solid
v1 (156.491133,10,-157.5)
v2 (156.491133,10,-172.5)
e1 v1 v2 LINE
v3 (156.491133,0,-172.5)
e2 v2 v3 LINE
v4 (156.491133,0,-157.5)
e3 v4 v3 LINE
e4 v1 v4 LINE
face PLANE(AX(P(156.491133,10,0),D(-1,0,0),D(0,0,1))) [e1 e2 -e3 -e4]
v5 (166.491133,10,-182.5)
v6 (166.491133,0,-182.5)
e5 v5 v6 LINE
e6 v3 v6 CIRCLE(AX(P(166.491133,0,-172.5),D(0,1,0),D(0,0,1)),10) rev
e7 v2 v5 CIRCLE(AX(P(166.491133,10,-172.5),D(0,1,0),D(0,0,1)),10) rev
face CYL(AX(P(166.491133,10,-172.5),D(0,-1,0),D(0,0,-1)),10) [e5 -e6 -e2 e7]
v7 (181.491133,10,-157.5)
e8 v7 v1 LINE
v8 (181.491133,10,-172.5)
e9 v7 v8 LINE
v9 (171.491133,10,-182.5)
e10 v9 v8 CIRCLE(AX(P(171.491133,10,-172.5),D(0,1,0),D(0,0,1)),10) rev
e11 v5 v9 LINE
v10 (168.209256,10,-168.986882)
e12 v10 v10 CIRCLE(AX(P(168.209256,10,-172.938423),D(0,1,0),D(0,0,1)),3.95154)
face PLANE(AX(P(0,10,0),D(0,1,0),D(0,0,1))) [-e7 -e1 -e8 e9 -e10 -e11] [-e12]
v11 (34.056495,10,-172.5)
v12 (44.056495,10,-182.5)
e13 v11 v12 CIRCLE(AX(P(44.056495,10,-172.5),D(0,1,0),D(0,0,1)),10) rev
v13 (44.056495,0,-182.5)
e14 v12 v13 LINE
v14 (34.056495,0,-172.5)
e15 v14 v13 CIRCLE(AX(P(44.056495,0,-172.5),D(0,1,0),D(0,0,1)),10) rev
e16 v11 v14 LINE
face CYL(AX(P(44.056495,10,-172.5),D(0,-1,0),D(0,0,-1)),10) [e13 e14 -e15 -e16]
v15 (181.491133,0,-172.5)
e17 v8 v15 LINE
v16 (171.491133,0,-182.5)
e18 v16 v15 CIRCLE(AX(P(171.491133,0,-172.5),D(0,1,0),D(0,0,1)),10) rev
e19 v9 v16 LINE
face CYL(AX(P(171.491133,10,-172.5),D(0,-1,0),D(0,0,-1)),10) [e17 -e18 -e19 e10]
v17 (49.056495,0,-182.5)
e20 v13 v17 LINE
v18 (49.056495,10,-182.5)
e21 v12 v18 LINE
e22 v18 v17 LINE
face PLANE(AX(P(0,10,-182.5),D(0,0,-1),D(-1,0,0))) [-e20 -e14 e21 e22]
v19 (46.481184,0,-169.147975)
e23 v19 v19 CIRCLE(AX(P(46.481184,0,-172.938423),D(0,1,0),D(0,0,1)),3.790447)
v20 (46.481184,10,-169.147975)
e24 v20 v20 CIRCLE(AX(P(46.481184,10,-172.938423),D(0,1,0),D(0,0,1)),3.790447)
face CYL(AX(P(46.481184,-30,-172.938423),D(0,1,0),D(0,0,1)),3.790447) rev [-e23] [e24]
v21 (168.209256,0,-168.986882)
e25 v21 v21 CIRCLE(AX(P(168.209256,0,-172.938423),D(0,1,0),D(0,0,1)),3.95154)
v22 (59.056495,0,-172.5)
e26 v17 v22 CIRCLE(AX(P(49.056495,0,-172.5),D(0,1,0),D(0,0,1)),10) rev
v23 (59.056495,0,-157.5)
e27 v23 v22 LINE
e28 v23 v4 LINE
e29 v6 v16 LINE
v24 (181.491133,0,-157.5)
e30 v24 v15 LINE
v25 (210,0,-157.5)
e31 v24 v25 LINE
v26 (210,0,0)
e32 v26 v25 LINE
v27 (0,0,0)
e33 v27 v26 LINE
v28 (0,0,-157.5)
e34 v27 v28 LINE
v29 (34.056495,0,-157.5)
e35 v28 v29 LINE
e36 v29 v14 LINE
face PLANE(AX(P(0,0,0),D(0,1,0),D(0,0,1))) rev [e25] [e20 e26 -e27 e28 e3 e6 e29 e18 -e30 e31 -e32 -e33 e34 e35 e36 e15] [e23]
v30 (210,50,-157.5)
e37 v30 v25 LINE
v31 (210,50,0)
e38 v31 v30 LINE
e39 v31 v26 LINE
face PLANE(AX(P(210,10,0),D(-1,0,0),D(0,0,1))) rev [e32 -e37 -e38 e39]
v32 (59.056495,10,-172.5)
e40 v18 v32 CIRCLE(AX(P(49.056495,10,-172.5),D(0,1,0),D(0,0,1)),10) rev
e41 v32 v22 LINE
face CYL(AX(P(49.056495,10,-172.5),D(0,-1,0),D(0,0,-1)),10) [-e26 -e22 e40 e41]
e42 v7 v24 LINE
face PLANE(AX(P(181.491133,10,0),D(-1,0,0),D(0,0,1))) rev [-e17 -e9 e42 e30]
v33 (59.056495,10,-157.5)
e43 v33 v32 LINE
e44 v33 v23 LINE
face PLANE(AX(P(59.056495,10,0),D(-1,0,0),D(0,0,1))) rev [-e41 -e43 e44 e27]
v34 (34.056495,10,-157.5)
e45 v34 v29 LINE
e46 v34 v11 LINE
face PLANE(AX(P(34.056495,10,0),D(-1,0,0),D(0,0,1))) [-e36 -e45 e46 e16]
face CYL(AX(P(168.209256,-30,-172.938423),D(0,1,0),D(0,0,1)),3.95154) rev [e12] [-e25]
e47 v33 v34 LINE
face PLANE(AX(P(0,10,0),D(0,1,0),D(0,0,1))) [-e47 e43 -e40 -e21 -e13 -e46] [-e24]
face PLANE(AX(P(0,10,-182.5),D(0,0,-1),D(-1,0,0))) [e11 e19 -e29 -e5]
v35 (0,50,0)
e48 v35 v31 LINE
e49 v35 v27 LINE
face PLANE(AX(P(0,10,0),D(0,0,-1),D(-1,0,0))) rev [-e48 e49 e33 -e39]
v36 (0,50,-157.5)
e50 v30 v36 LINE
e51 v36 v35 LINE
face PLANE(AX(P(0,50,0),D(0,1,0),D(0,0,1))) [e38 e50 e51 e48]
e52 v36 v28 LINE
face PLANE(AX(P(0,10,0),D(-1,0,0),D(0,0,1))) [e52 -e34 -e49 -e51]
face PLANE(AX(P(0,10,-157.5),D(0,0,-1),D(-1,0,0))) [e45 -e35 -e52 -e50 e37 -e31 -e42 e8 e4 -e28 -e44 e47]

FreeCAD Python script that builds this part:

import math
import FreeCAD as App
import Part
import Sketcher

doc = App.newDocument("Part")
body = doc.addObject("PartDesign::Body", "Body")

# Sketch on XZ plane
sketch1 = body.newObject("Sketcher::SketchObject", "Sketch")
sketch1.AttachmentSupport = (doc.getObject("XZ_Plane"), [""])
sketch1.MapMode = "FlatFace"
sketch1.addGeometry(Part.LineSegment(App.Vector(0, -157.5, 0), App.Vector(0, 0, 0)), False)
sketch1.addGeometry(Part.LineSegment(App.Vector(0, 0, 0), App.Vector(210, 0, 0)), False)
sketch1.addGeometry(Part.LineSegment(App.Vector(210, 0, 0), App.Vector(210, -157.5, 0)), False)
sketch1.addGeometry(Part.LineSegment(App.Vector(210, -157.5, 0), App.Vector(181.491133, -157.5, 0)), False)
sketch1.addGeometry(Part.LineSegment(App.Vector(181.491133, -157.5, 0), App.Vector(181.491133, -172.5, 0)), False)
sketch1.addGeometry(Part.ArcOfCircle(Part.Circle(App.Vector(171.491133, -172.5, 0), App.Vector(0, 0, 1), 10), math.radians(-90), math.radians(0)), False)
sketch1.addGeometry(Part.LineSegment(App.Vector(171.491133, -182.5, 0), App.Vector(166.491133, -182.5, 0)), False)
sketch1.addGeometry(Part.ArcOfCircle(Part.Circle(App.Vector(166.491133, -172.5, 0), App.Vector(0, 0, 1), 10), math.radians(180), math.radians(270)), False)
sketch1.addGeometry(Part.LineSegment(App.Vector(156.491133, -172.5, 0), App.Vector(156.491133, -157.5, 0)), False)
sketch1.addGeometry(Part.LineSegment(App.Vector(156.491133, -157.5, 0), App.Vector(59.056495, -157.5, 0)), False)
sketch1.addGeometry(Part.LineSegment(App.Vector(59.056495, -157.5, 0), App.Vector(59.056495, -172.5, 0)), False)
sketch1.addGeometry(Part.ArcOfCircle(Part.Circle(App.Vector(49.056495, -172.5, 0), App.Vector(0, 0, 1), 10), math.radians(-90), math.radians(0)), False)
sketch1.addGeometry(Part.LineSegment(App.Vector(49.056495, -182.5, 0), App.Vector(44.056495, -182.5, 0)), False)
sketch1.addGeometry(Part.ArcOfCircle(Part.Circle(App.Vector(44.056495, -172.5, 0), App.Vector(0, 0, 1), 10), math.radians(180), math.radians(270)), False)
sketch1.addGeometry(Part.LineSegment(App.Vector(34.056495, -172.5, 0), App.Vector(34.056495, -157.5, 0)), False)
sketch1.addGeometry(Part.LineSegment(App.Vector(34.056495, -157.5, 0), App.Vector(0, -157.5, 0)), False)
sketch1.addConstraint(Sketcher.Constraint("Coincident", 0, 2, 1, 1))
sketch1.addConstraint(Sketcher.Constraint("Coincident", 1, 2, 2, 1))
sketch1.addConstraint(Sketcher.Constraint("Coincident", 2, 2, 3, 1))
sketch1.addConstraint(Sketcher.Constraint("Coincident", 3, 2, 4, 1))
sketch1.addConstraint(Sketcher.Constraint("Tangent", 4, 2, 5, 2))
sketch1.addConstraint(Sketcher.Constraint("Tangent", 5, 1, 6, 1))
sketch1.addConstraint(Sketcher.Constraint("Tangent", 6, 2, 7, 2))
sketch1.addConstraint(Sketcher.Constraint("Tangent", 7, 1, 8, 1))
sketch1.addConstraint(Sketcher.Constraint("Coincident", 8, 2, 9, 1))
sketch1.addConstraint(Sketcher.Constraint("Coincident", 9, 2, 10, 1))
sketch1.addConstraint(Sketcher.Constraint("Tangent", 10, 2, 11, 2))
sketch1.addConstraint(Sketcher.Constraint("Tangent", 11, 1, 12, 1))
sketch1.addConstraint(Sketcher.Constraint("Tangent", 12, 2, 13, 2))
sketch1.addConstraint(Sketcher.Constraint("Tangent", 13, 1, 14, 1))
sketch1.addConstraint(Sketcher.Constraint("Coincident", 14, 2, 15, 1))
sketch1.addConstraint(Sketcher.Constraint("Coincident", 15, 2, 0, 1))
sketch1.addConstraint(Sketcher.Constraint("Vertical", 0))
sketch1.addConstraint(Sketcher.Constraint("Horizontal", 1))
sketch1.addConstraint(Sketcher.Constraint("Vertical", 2))
sketch1.addConstraint(Sketcher.Constraint("Horizontal", 3))
sketch1.addConstraint(Sketcher.Constraint("Vertical", 4))
sketch1.addConstraint(Sketcher.Constraint("Horizontal", 6))
sketch1.addConstraint(Sketcher.Constraint("Vertical", 8))
sketch1.addConstraint(Sketcher.Constraint("Horizontal", 9))
sketch1.addConstraint(Sketcher.Constraint("Vertical", 10))
sketch1.addConstraint(Sketcher.Constraint("Horizontal", 12))
sketch1.addConstraint(Sketcher.Constraint("Vertical", 14))
sketch1.addConstraint(Sketcher.Constraint("Horizontal", 15))
sketch1.addConstraint(Sketcher.Constraint("Coincident", 0, 2, -1, 1))
sketch1.addConstraint(Sketcher.Constraint("Equal", 5, 7))
sketch1.addConstraint(Sketcher.Constraint("Equal", 7, 11))
sketch1.addConstraint(Sketcher.Constraint("Equal", 11, 13))
sketch1.addConstraint(Sketcher.Constraint("Horizontal", 7, 3, 11, 3))
sketch1.addConstraint(Sketcher.Constraint("Horizontal", 3, 2, 8, 2))
sketch1.addConstraint(Sketcher.Constraint("Horizontal", 9, 2, 14, 2))
sketch1.addConstraint(Sketcher.Constraint("Equal", 6, 12))
sketch1.addConstraint(Sketcher.Constraint("Radius", 5, 10.0))
sketch1.addConstraint(Sketcher.Constraint("DistanceX", 1, 1, 1, 2, 210.0))
sketch1.addConstraint(Sketcher.Constraint("DistanceX", 6, 2, 6, 1, 5.0))
sketch1.addConstraint(Sketcher.Constraint("DistanceY", 4, 2, 4, 1, 15.0))
sketch1.addConstraint(Sketcher.Constraint("DistanceY", 0, 1, 0, 2, 157.5))
sketch1.addConstraint(Sketcher.Constraint("DistanceX", 3, 2, 3, 1, 28.508867))
sketch1.addConstraint(Sketcher.Constraint("DistanceX", 9, 2, 9, 1, 97.434638))
pad1 = body.newObject("PartDesign::Pad", "Pad")
pad1.Profile = sketch1
pad1.Length = 10
pad1.Reversed = True

# Sketch on XZ plane
sketch2 = body.newObject("Sketcher::SketchObject", "Sketch001")
sketch2.AttachmentSupport = (doc.getObject("XZ_Plane"), [""])
sketch2.MapMode = "FlatFace"
sketch2.AttachmentOffset = App.Placement(App.Vector(0, 0, -10), App.Rotation())
sketch2.addGeometry(Part.LineSegment(App.Vector(0, -157.5, 0), App.Vector(0, 0, 0)), False)
sketch2.addGeometry(Part.LineSegment(App.Vector(0, 0, 0), App.Vector(210, 0, 0)), False)
sketch2.addGeometry(Part.LineSegment(App.Vector(210, 0, 0), App.Vector(210, -157.5, 0)), False)
sketch2.addGeometry(Part.LineSegment(App.Vector(210, -157.5, 0), App.Vector(0, -157.5, 0)), False)
sketch2.addConstraint(Sketcher.Constraint("Coincident", 0, 2, 1, 1))
sketch2.addConstraint(Sketcher.Constraint("Coincident", 1, 2, 2, 1))
sketch2.addConstraint(Sketcher.Constraint("Coincident", 2, 2, 3, 1))
sketch2.addConstraint(Sketcher.Constraint("Coincident", 3, 2, 0, 1))
sketch2.addConstraint(Sketcher.Constraint("Vertical", 0))
sketch2.addConstraint(Sketcher.Constraint("Horizontal", 1))
sketch2.addConstraint(Sketcher.Constraint("Vertical", 2))
sketch2.addConstraint(Sketcher.Constraint("Horizontal", 3))
sketch2.addConstraint(Sketcher.Constraint("Coincident", 0, 2, -1, 1))
sketch2.addConstraint(Sketcher.Constraint("DistanceX", 1, 1, 1, 2, 210.0))
sketch2.addConstraint(Sketcher.Constraint("DistanceY", 0, 1, 0, 2, 157.5))
pad2 = body.newObject("PartDesign::Pad", "Pad001")
pad2.Profile = sketch2
pad2.Length = 40
pad2.Reversed = True

# Sketch on XZ plane
sketch3 = body.newObject("Sketcher::SketchObject", "Sketch002")
sketch3.AttachmentSupport = (doc.getObject("XZ_Plane"), [""])
sketch3.MapMode = "FlatFace"
sketch3.AttachmentOffset = App.Placement(App.Vector(0, 0, -10), App.Rotation())
sketch3.addGeometry(Part.Circle(App.Vector(46.481184, -172.938423, 0), App.Vector(0, 0, 1), 3.790447), False)
sketch3.addGeometry(Part.Circle(App.Vector(168.209256, -172.938423, 0), App.Vector(0, 0, 1), 3.95154), False)
sketch3.addConstraint(Sketcher.Constraint("Horizontal", 0, 3, 1, 3))
sketch3.addConstraint(Sketcher.Constraint("Diameter", 1, 7.90308))
sketch3.addConstraint(Sketcher.Constraint("Diameter", 0, 7.580895))
sketch3.addConstraint(Sketcher.Constraint("DistanceX", 0, 3, 1, 3, 121.728072))
sketch3.addConstraint(Sketcher.Constraint("DistanceX", -1, 1, 0, 3, 46.481184))
sketch3.addConstraint(Sketcher.Constraint("DistanceY", 0, 3, -1, 1, 172.938423))
pocket1 = body.newObject("PartDesign::Pocket", "Pocket")
pocket1.Profile = sketch3
pocket1.Length = 40
pocket1.Reversed = True

doc.recompute()
